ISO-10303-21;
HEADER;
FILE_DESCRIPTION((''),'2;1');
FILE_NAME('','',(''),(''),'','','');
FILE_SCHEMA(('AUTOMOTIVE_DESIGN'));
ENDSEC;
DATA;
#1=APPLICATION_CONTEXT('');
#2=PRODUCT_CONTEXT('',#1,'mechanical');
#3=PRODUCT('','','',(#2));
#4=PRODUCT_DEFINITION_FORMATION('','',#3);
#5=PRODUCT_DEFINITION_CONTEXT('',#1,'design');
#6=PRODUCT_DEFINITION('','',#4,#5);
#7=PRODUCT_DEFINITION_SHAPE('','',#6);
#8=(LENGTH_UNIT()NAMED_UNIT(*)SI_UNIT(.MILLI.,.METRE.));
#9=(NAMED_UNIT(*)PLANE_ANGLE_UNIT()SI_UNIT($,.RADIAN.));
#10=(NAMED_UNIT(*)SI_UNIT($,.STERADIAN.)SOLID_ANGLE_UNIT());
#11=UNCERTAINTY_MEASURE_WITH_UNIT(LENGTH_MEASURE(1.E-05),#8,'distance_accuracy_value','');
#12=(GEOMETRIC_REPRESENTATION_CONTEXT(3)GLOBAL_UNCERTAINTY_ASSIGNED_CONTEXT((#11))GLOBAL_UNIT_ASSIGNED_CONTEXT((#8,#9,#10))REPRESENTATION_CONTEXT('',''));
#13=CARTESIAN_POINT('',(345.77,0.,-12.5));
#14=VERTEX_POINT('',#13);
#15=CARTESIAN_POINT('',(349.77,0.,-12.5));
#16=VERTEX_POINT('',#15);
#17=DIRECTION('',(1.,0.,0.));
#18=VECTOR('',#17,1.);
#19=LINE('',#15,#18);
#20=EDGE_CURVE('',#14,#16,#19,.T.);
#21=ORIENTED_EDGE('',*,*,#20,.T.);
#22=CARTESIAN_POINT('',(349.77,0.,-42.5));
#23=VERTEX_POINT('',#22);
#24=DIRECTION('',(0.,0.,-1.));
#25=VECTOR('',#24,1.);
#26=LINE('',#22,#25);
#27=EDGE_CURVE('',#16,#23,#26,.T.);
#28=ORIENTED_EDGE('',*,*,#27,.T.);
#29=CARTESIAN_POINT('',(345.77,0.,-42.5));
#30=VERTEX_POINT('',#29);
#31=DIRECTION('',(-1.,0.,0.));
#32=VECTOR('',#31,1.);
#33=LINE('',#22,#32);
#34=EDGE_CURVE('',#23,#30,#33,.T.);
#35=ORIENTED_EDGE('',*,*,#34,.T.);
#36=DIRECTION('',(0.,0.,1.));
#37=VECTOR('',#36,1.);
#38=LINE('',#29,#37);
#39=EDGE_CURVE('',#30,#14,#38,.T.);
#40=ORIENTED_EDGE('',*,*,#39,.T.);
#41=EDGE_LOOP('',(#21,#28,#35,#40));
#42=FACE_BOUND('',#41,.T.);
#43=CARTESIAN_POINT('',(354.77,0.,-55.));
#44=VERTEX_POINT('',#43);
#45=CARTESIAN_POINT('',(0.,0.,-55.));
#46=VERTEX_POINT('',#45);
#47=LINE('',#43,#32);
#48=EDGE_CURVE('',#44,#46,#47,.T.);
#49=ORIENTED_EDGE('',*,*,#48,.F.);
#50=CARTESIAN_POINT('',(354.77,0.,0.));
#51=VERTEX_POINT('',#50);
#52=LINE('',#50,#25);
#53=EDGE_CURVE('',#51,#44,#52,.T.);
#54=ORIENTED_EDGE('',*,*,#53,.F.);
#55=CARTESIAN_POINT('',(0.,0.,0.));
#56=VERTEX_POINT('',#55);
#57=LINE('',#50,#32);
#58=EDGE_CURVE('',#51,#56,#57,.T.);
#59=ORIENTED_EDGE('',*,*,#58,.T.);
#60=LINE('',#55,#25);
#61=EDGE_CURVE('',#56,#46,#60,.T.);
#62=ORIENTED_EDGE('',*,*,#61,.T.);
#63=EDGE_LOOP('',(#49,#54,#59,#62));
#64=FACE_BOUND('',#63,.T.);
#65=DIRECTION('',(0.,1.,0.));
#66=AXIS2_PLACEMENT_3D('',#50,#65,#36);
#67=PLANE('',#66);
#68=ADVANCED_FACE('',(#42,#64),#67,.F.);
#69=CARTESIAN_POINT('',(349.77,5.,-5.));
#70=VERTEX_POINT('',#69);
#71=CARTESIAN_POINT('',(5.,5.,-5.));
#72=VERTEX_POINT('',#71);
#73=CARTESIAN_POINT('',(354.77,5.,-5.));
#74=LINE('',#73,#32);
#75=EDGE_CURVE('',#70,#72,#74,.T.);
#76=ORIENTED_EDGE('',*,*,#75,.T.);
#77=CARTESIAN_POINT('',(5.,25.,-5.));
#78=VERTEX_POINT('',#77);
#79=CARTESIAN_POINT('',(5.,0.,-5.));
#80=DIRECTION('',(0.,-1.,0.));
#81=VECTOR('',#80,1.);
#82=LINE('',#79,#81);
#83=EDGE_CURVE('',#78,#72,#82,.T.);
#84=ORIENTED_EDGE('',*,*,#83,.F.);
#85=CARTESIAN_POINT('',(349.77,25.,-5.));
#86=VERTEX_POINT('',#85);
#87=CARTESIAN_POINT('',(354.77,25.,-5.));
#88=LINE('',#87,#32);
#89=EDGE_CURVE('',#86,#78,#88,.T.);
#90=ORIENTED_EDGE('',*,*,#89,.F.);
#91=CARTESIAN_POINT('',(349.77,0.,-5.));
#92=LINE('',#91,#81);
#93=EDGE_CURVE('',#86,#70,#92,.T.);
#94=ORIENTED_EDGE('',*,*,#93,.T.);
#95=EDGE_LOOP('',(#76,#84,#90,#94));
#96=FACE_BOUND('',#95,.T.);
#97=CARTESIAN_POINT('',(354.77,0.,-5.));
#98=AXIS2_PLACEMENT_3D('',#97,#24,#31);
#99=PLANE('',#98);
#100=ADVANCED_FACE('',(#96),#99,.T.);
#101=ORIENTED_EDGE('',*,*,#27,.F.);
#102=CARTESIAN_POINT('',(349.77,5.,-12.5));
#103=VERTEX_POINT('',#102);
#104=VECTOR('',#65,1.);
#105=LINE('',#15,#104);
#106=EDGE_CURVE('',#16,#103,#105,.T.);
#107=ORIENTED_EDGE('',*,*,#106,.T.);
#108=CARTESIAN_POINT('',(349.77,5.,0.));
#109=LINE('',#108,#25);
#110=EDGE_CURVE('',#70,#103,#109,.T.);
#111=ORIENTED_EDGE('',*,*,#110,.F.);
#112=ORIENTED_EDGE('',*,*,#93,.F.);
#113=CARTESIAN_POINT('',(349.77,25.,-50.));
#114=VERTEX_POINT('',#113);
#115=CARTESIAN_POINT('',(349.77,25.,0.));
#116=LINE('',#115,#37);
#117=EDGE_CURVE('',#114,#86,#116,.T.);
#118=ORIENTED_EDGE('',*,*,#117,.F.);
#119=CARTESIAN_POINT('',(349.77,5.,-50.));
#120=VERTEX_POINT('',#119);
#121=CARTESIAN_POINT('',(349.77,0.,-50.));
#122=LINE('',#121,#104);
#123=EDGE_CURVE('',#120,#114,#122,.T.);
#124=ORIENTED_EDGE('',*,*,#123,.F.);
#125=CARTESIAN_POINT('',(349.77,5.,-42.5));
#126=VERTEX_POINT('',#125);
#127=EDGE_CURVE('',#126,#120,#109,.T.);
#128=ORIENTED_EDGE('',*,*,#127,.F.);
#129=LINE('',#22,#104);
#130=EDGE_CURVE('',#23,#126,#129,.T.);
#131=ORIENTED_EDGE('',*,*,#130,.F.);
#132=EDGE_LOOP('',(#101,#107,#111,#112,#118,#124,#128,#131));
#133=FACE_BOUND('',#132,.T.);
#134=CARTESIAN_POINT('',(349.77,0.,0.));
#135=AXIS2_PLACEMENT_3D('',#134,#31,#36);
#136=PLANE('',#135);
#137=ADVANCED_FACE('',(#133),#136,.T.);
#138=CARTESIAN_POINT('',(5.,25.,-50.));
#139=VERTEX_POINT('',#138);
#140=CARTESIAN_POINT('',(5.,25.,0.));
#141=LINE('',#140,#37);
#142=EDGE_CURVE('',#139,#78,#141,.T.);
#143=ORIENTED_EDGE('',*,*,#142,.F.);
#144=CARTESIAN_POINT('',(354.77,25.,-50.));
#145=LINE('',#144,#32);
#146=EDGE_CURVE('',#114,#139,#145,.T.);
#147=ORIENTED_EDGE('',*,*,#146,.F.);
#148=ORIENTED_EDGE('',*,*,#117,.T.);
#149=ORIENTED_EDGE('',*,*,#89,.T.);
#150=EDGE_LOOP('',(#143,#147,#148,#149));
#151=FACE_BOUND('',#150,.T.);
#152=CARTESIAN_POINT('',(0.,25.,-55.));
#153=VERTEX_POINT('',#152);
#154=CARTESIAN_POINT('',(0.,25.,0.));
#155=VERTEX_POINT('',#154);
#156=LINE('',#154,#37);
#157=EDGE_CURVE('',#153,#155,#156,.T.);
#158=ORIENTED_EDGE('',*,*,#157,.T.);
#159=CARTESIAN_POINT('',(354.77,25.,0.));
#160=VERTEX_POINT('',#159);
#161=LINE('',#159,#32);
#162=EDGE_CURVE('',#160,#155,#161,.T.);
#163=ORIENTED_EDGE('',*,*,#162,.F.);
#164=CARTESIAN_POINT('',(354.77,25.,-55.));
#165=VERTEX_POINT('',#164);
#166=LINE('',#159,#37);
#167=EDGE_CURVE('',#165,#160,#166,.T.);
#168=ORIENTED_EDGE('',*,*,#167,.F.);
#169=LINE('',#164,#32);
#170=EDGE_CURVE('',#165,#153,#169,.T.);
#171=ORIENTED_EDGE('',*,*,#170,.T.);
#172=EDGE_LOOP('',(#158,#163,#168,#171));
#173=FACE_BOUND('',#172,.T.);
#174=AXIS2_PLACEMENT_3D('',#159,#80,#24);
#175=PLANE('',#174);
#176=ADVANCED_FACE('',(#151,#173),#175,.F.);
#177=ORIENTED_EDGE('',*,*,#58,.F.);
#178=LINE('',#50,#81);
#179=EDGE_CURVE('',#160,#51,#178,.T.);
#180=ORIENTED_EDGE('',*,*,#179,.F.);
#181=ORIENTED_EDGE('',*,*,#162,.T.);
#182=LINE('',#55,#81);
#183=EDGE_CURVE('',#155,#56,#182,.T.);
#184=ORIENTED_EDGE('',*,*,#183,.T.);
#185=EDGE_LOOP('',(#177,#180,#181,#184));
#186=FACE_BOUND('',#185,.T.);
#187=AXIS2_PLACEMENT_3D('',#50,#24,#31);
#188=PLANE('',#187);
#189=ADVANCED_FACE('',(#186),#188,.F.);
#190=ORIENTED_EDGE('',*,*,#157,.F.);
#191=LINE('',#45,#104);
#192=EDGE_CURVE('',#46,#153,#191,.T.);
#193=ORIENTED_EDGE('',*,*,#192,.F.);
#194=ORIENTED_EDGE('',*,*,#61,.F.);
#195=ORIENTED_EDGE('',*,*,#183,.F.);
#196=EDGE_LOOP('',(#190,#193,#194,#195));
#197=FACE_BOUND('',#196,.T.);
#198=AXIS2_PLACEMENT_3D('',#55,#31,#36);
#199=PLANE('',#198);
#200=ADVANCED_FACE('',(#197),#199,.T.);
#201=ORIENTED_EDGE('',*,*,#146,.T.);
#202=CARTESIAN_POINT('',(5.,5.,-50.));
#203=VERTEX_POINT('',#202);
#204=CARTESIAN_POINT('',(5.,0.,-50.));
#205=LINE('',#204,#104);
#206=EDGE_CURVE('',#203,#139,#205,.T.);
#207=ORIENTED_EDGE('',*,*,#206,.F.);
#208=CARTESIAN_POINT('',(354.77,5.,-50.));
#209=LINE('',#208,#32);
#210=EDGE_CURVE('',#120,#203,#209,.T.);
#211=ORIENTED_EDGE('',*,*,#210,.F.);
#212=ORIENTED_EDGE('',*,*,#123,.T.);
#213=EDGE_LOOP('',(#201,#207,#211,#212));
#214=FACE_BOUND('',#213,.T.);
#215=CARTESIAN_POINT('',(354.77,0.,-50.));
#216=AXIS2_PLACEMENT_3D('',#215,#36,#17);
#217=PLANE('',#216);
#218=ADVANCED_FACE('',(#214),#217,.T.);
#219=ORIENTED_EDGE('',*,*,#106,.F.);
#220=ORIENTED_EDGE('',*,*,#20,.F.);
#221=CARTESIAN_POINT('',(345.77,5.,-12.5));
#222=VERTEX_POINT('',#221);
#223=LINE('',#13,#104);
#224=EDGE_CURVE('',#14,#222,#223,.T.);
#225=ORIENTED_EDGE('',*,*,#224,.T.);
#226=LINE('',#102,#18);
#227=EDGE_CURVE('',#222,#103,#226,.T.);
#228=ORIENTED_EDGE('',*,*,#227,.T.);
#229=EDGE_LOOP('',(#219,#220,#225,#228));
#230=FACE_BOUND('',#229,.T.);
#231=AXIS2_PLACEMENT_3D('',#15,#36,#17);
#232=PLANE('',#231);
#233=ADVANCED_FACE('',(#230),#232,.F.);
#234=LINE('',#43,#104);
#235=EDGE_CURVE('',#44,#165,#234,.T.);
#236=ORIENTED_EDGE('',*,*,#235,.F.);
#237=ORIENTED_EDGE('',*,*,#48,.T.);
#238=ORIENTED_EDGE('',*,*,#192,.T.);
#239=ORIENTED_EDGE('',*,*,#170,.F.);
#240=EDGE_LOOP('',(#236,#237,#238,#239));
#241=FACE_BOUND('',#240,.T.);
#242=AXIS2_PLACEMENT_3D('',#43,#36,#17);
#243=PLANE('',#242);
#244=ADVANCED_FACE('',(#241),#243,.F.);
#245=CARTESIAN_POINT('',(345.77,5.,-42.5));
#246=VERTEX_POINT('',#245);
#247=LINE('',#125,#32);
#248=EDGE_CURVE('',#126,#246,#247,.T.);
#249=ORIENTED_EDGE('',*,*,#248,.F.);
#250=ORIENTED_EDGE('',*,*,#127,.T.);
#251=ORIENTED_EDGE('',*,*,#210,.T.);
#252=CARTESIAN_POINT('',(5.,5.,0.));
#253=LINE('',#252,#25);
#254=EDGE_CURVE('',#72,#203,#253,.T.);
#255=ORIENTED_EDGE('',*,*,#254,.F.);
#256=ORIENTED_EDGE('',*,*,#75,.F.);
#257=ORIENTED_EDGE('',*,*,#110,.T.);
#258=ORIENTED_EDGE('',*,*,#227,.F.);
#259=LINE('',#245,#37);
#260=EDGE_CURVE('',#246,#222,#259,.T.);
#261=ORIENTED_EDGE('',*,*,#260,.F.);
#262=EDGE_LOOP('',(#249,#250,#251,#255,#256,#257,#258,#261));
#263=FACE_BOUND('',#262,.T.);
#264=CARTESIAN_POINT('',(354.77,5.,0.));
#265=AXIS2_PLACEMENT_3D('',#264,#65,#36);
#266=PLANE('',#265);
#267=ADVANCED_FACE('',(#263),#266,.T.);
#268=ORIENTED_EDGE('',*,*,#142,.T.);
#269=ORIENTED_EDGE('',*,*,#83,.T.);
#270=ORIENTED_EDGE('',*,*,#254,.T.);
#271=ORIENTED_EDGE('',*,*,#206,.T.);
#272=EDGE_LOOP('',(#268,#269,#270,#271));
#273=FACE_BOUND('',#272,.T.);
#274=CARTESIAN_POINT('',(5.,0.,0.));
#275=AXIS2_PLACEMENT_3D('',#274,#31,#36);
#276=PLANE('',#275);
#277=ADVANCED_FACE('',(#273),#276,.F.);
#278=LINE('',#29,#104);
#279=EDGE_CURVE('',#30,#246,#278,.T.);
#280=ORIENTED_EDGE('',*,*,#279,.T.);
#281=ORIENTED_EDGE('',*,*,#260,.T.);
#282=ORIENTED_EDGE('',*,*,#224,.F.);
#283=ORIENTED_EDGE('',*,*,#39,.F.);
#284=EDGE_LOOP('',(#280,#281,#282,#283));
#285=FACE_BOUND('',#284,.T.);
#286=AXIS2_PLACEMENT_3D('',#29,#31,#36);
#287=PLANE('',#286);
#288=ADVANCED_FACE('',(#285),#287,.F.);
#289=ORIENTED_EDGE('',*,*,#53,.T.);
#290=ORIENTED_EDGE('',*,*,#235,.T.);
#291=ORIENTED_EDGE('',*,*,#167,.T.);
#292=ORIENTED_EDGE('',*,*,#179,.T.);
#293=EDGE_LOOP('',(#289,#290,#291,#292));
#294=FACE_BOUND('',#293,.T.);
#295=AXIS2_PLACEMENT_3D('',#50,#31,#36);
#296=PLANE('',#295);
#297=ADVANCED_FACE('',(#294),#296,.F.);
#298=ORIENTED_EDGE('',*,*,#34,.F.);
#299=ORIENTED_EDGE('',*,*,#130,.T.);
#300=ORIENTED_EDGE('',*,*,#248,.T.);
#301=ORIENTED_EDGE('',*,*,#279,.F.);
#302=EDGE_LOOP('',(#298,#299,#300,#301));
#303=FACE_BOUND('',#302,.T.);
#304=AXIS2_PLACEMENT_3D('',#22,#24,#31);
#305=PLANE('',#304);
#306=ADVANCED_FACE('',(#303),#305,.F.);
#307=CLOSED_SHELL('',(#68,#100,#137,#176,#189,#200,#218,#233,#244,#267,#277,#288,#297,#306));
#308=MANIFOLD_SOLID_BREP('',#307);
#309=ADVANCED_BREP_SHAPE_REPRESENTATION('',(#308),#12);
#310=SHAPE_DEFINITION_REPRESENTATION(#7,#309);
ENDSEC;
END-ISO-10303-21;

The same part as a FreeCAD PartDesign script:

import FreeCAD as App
import Part
import Sketcher
from FreeCAD import Vector


def faces_at(feature, points):
    """Names of the faces that lie closest to the given points."""
    faces = feature.Shape.Faces
    near = lambda p: min(range(len(faces)), key=lambda i: faces[i].distToShape(Part.Vertex(*p))[0])
    return sorted({f"Face{near(p) + 1}" for p in points})

doc = App.newDocument("Part")
body = doc.addObject("PartDesign::Body", "Body")

# Sketch on YZ plane
sketch1 = body.newObject("Sketcher::SketchObject", "Sketch")
sketch1.AttachmentSupport = (doc.getObject("YZ_Plane"), [""])
sketch1.MapMode = "FlatFace"
sketch1.addGeometry([
    Part.LineSegment(Vector(25, 0, 0), Vector(0, 0, 0)),
    Part.LineSegment(Vector(0, 0, 0), Vector(0, -55, 0)),
    Part.LineSegment(Vector(0, -55, 0), Vector(25, -55, 0)),
    Part.LineSegment(Vector(25, -55, 0), Vector(25, 0, 0)),
], False)
sketch1.addConstraint([
    Sketcher.Constraint("Coincident", 0, 2, 1, 1),
    Sketcher.Constraint("Coincident", 1, 2, 2, 1),
    Sketcher.Constraint("Coincident", 2, 2, 3, 1),
    Sketcher.Constraint("Coincident", 3, 2, 0, 1),
    Sketcher.Constraint("Horizontal", 0),
    Sketcher.Constraint("Vertical", 1),
    Sketcher.Constraint("Horizontal", 2),
    Sketcher.Constraint("Vertical", 3),
    Sketcher.Constraint("Coincident", 0, 2, -1, 1),
    Sketcher.Constraint("DistanceX", 0, 2, 0, 1, 25.0),
    Sketcher.Constraint("DistanceY", 1, 2, 1, 1, 55.0),
])
pad1 = body.newObject("PartDesign::Pad", "Pad")
pad1.Profile = sketch1
pad1.Length = 354.77
doc.recompute()

thickness = body.newObject("PartDesign::Thickness", "Thickness")
thickness.Base = (pad1, faces_at(pad1, [(177.385, 25, -27.5)]))
thickness.Value = 5
thickness.Reversed = True
thickness.Join = "Intersection"

# Sketch on XZ plane
sketch2 = body.newObject("Sketcher::SketchObject", "Sketch001")
sketch2.AttachmentSupport = (doc.getObject("XZ_Plane"), [""])
sketch2.MapMode = "FlatFace"
sketch2.AttachmentOffset = App.Placement(Vector(0, 0, -5), App.Rotation())
sketch2.addGeometry([
    Part.LineSegment(Vector(345.8, -42.5, 0), Vector(345.8, -12.5, 0)),
    Part.LineSegment(Vector(345.8, -12.5, 0), Vector(349.8, -12.5, 0)),
    Part.LineSegment(Vector(349.8, -12.5, 0), Vector(349.8, -42.5, 0)),
    Part.LineSegment(Vector(349.8, -42.5, 0), Vector(345.8, -42.5, 0)),
], False)
sketch2.addConstraint([
    Sketcher.Constraint("Coincident", 0, 2, 1, 1),
    Sketcher.Constraint("Coincident", 1, 2, 2, 1),
    Sketcher.Constraint("Coincident", 2, 2, 3, 1),
    Sketcher.Constraint("Coincident", 3, 2, 0, 1),
    Sketcher.Constraint("Vertical", 0),
    Sketcher.Constraint("Horizontal", 1),
    Sketcher.Constraint("Vertical", 2),
    Sketcher.Constraint("Horizontal", 3),
    Sketcher.Constraint("DistanceX", 1, 1, 1, 2, 4.0),
    Sketcher.Constraint("DistanceY", 0, 1, 0, 2, 30.0),
    Sketcher.Constraint("DistanceY", 0, 2, -1, 1, 12.5),
    Sketcher.Constraint("DistanceX", -1, 1, 0, 2, 345.77),
])
pocket1 = body.newObject("PartDesign::Pocket", "Pocket")
pocket1.Profile = sketch2
pocket1.Type = "ThroughAll"
pocket1.Reversed = True

doc.recompute()
